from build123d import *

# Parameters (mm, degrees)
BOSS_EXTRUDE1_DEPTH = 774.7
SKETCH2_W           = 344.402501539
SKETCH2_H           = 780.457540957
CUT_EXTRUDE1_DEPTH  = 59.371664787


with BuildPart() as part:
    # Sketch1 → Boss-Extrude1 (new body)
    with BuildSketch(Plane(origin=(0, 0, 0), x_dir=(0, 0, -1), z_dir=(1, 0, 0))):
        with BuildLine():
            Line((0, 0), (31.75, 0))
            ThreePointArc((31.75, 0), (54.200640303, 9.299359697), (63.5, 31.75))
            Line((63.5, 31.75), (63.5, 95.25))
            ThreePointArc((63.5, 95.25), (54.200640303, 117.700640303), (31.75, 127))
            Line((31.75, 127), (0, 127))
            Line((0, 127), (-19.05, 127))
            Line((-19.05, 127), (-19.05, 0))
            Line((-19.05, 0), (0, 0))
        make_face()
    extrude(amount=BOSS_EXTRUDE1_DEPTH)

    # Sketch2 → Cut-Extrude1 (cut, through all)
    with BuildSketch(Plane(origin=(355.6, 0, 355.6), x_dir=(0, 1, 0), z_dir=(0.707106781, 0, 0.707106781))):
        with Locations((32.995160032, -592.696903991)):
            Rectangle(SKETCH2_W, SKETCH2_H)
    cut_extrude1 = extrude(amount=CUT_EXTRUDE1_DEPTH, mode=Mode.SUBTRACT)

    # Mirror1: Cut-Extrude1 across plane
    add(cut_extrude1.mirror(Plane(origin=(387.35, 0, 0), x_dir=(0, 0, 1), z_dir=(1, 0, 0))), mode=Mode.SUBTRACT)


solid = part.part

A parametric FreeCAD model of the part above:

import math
import FreeCAD as App
import Part
import Sketcher
from FreeCAD import Vector
Q = App.Units.Quantity


def add_polygon(sketch, points):
    """Adds a closed chain of lines whose ends are joined by coincident constraints."""
    first, n = sketch.GeometryCount, len(points)
    for a, b in zip(points, points[1:] + points[:1]):
        sketch.addGeometry(Part.LineSegment(App.Vector(*a, 0), App.Vector(*b, 0)), False)
    for i in range(n):
        sketch.addConstraint(Sketcher.Constraint("Coincident", first + i, 2, first + (i + 1) % n, 1))

doc = App.newDocument("Part")
params = doc.addObject("Spreadsheet::Sheet", "Params")
for row, (alias, value) in enumerate([
    ("sketch1_width", "5 in"),
    ("sketch1_height", "2 in"),
    ("sketch1_radius", "1.25 in"),
    ("pad1_length", "30.5 in"),
], start=1):
    params.set(f"A{row}", alias)
    params.set(f"B{row}", "=" + value)
    params.setAlias(f"B{row}", alias)

body = doc.addObject("PartDesign::Body", "Body")

# Sketch on YZ plane
sketch1 = body.newObject("Sketcher::SketchObject", "Sketch")
sketch1.AttachmentSupport = (doc.getObject("YZ_Plane"), [""])
sketch1.MapMode = "FlatFace"
sketch1.addGeometry(Part.ArcOfCircle(Part.Circle(Vector(32, -32, 0), Vector(0, 0, 1), 32), math.radians(180), math.radians(270)), False)
sketch1.addGeometry(Part.LineSegment(Vector(32, -64, 0), Vector(95, -64, 0)), False)
sketch1.addGeometry(Part.ArcOfCircle(Part.Circle(Vector(95, -32, 0), Vector(0, 0, 1), 32), math.radians(-90), math.radians(0)), False)
sketch1.addGeometry(Part.LineSegment(Vector(127, -32, 0), Vector(127, 19, 0)), False)
sketch1.addGeometry(Part.LineSegment(Vector(127, 19, 0), Vector(0, 19, 0)), False)
sketch1.addGeometry(Part.LineSegment(Vector(0, 19, 0), Vector(0, -32, 0)), False)
sketch1.addConstraint(Sketcher.Constraint("Tangent", 0, 2, 1, 1))
sketch1.addConstraint(Sketcher.Constraint("Tangent", 1, 2, 2, 1))
sketch1.addConstraint(Sketcher.Constraint("Tangent", 2, 2, 3, 1))
sketch1.addConstraint(Sketcher.Constraint("Coincident", 3, 2, 4, 1))
sketch1.addConstraint(Sketcher.Constraint("Coincident", 4, 2, 5, 1))
sketch1.addConstraint(Sketcher.Constraint("Tangent", 5, 2, 0, 1))
sketch1.addConstraint(Sketcher.Constraint("Horizontal", 1))
sketch1.addConstraint(Sketcher.Constraint("Vertical", 3))
sketch1.addConstraint(Sketcher.Constraint("Horizontal", 4))
sketch1.addConstraint(Sketcher.Constraint("Vertical", 5))
sketch1.addConstraint(Sketcher.Constraint("Equal", 0, 2))
sketch1.addConstraint(Sketcher.Constraint("PointOnObject", 4, 2, -2))
sketch1.addConstraint(Sketcher.Constraint("DistanceX", 4, 2, 4, 1, Q("5 in")))
sketch1.addConstraint(Sketcher.Constraint("DistanceY", 3, 1, 3, 2, Q("2 in")))
sketch1.addConstraint(Sketcher.Constraint("Radius", 0, Q("1.25 in")))
sketch1.addConstraint(Sketcher.Constraint("DistanceY", 0, 2, -1, 1, Q("2.5 in")))
sketch1.setExpression("Constraints[12]", "Params.sketch1_width")
sketch1.setExpression("Constraints[13]", "Params.sketch1_height")
sketch1.setExpression("Constraints[14]", "Params.sketch1_radius")
pad1 = body.newObject("PartDesign::Pad", "Pad")
pad1.Profile = sketch1
pad1.setExpression("Length", "Params.pad1_length")

# Sketch on an angled plane
sketch2 = body.newObject("Sketcher::SketchObject", "Sketch001")
sketch2.Placement = App.Placement(Vector(355.6, 0, 355.6), App.Rotation(Vector(0, 1, 0), Vector(-0.707106781, 0, 0.707106781), Vector(0.707106781, 0, 0.707106781), "ZXY"))
add_polygon(sketch2, [(-139, -202), (-139, -983), (205, -983), (205, -202)])  # lines 0-3
sketch2.addConstraint(Sketcher.Constraint("Vertical", 0))
sketch2.addConstraint(Sketcher.Constraint("Horizontal", 1))
sketch2.addConstraint(Sketcher.Constraint("Vertical", 2))
sketch2.addConstraint(Sketcher.Constraint("Horizontal", 3))
sketch2.addConstraint(Sketcher.Constraint("DistanceX", 1, 1, 1, 2, 344.402502))
sketch2.addConstraint(Sketcher.Constraint("DistanceY", 0, 2, 0, 1, 780.457541))
sketch2.addConstraint(Sketcher.Constraint("DistanceX", 0, 2, -1, 1, 139.206091))
sketch2.addConstraint(Sketcher.Constraint("DistanceY", 0, 2, -1, 1, 982.925674))
pocket1 = body.newObject("PartDesign::Pocket", "Pocket")
pocket1.Profile = sketch2
pocket1.Type = "ThroughAll"
pocket1.Reversed = True
doc.recompute()

datumplane = body.newObject("PartDesign::Plane", "DatumPlane")
datumplane.AttachmentSupport = (doc.getObject("YZ_Plane"), [""])
datumplane.MapMode = "FlatFace"
datumplane.AttachmentOffset = App.Placement(Vector(0, 0, 15.25 * 25.4), App.Rotation())
mirrored = body.newObject("PartDesign::Mirrored", "Mirrored")
mirrored.Originals = [pocket1]
mirrored.MirrorPlane = (datumplane, [""])
body.Tip = mirrored

doc.recompute()
